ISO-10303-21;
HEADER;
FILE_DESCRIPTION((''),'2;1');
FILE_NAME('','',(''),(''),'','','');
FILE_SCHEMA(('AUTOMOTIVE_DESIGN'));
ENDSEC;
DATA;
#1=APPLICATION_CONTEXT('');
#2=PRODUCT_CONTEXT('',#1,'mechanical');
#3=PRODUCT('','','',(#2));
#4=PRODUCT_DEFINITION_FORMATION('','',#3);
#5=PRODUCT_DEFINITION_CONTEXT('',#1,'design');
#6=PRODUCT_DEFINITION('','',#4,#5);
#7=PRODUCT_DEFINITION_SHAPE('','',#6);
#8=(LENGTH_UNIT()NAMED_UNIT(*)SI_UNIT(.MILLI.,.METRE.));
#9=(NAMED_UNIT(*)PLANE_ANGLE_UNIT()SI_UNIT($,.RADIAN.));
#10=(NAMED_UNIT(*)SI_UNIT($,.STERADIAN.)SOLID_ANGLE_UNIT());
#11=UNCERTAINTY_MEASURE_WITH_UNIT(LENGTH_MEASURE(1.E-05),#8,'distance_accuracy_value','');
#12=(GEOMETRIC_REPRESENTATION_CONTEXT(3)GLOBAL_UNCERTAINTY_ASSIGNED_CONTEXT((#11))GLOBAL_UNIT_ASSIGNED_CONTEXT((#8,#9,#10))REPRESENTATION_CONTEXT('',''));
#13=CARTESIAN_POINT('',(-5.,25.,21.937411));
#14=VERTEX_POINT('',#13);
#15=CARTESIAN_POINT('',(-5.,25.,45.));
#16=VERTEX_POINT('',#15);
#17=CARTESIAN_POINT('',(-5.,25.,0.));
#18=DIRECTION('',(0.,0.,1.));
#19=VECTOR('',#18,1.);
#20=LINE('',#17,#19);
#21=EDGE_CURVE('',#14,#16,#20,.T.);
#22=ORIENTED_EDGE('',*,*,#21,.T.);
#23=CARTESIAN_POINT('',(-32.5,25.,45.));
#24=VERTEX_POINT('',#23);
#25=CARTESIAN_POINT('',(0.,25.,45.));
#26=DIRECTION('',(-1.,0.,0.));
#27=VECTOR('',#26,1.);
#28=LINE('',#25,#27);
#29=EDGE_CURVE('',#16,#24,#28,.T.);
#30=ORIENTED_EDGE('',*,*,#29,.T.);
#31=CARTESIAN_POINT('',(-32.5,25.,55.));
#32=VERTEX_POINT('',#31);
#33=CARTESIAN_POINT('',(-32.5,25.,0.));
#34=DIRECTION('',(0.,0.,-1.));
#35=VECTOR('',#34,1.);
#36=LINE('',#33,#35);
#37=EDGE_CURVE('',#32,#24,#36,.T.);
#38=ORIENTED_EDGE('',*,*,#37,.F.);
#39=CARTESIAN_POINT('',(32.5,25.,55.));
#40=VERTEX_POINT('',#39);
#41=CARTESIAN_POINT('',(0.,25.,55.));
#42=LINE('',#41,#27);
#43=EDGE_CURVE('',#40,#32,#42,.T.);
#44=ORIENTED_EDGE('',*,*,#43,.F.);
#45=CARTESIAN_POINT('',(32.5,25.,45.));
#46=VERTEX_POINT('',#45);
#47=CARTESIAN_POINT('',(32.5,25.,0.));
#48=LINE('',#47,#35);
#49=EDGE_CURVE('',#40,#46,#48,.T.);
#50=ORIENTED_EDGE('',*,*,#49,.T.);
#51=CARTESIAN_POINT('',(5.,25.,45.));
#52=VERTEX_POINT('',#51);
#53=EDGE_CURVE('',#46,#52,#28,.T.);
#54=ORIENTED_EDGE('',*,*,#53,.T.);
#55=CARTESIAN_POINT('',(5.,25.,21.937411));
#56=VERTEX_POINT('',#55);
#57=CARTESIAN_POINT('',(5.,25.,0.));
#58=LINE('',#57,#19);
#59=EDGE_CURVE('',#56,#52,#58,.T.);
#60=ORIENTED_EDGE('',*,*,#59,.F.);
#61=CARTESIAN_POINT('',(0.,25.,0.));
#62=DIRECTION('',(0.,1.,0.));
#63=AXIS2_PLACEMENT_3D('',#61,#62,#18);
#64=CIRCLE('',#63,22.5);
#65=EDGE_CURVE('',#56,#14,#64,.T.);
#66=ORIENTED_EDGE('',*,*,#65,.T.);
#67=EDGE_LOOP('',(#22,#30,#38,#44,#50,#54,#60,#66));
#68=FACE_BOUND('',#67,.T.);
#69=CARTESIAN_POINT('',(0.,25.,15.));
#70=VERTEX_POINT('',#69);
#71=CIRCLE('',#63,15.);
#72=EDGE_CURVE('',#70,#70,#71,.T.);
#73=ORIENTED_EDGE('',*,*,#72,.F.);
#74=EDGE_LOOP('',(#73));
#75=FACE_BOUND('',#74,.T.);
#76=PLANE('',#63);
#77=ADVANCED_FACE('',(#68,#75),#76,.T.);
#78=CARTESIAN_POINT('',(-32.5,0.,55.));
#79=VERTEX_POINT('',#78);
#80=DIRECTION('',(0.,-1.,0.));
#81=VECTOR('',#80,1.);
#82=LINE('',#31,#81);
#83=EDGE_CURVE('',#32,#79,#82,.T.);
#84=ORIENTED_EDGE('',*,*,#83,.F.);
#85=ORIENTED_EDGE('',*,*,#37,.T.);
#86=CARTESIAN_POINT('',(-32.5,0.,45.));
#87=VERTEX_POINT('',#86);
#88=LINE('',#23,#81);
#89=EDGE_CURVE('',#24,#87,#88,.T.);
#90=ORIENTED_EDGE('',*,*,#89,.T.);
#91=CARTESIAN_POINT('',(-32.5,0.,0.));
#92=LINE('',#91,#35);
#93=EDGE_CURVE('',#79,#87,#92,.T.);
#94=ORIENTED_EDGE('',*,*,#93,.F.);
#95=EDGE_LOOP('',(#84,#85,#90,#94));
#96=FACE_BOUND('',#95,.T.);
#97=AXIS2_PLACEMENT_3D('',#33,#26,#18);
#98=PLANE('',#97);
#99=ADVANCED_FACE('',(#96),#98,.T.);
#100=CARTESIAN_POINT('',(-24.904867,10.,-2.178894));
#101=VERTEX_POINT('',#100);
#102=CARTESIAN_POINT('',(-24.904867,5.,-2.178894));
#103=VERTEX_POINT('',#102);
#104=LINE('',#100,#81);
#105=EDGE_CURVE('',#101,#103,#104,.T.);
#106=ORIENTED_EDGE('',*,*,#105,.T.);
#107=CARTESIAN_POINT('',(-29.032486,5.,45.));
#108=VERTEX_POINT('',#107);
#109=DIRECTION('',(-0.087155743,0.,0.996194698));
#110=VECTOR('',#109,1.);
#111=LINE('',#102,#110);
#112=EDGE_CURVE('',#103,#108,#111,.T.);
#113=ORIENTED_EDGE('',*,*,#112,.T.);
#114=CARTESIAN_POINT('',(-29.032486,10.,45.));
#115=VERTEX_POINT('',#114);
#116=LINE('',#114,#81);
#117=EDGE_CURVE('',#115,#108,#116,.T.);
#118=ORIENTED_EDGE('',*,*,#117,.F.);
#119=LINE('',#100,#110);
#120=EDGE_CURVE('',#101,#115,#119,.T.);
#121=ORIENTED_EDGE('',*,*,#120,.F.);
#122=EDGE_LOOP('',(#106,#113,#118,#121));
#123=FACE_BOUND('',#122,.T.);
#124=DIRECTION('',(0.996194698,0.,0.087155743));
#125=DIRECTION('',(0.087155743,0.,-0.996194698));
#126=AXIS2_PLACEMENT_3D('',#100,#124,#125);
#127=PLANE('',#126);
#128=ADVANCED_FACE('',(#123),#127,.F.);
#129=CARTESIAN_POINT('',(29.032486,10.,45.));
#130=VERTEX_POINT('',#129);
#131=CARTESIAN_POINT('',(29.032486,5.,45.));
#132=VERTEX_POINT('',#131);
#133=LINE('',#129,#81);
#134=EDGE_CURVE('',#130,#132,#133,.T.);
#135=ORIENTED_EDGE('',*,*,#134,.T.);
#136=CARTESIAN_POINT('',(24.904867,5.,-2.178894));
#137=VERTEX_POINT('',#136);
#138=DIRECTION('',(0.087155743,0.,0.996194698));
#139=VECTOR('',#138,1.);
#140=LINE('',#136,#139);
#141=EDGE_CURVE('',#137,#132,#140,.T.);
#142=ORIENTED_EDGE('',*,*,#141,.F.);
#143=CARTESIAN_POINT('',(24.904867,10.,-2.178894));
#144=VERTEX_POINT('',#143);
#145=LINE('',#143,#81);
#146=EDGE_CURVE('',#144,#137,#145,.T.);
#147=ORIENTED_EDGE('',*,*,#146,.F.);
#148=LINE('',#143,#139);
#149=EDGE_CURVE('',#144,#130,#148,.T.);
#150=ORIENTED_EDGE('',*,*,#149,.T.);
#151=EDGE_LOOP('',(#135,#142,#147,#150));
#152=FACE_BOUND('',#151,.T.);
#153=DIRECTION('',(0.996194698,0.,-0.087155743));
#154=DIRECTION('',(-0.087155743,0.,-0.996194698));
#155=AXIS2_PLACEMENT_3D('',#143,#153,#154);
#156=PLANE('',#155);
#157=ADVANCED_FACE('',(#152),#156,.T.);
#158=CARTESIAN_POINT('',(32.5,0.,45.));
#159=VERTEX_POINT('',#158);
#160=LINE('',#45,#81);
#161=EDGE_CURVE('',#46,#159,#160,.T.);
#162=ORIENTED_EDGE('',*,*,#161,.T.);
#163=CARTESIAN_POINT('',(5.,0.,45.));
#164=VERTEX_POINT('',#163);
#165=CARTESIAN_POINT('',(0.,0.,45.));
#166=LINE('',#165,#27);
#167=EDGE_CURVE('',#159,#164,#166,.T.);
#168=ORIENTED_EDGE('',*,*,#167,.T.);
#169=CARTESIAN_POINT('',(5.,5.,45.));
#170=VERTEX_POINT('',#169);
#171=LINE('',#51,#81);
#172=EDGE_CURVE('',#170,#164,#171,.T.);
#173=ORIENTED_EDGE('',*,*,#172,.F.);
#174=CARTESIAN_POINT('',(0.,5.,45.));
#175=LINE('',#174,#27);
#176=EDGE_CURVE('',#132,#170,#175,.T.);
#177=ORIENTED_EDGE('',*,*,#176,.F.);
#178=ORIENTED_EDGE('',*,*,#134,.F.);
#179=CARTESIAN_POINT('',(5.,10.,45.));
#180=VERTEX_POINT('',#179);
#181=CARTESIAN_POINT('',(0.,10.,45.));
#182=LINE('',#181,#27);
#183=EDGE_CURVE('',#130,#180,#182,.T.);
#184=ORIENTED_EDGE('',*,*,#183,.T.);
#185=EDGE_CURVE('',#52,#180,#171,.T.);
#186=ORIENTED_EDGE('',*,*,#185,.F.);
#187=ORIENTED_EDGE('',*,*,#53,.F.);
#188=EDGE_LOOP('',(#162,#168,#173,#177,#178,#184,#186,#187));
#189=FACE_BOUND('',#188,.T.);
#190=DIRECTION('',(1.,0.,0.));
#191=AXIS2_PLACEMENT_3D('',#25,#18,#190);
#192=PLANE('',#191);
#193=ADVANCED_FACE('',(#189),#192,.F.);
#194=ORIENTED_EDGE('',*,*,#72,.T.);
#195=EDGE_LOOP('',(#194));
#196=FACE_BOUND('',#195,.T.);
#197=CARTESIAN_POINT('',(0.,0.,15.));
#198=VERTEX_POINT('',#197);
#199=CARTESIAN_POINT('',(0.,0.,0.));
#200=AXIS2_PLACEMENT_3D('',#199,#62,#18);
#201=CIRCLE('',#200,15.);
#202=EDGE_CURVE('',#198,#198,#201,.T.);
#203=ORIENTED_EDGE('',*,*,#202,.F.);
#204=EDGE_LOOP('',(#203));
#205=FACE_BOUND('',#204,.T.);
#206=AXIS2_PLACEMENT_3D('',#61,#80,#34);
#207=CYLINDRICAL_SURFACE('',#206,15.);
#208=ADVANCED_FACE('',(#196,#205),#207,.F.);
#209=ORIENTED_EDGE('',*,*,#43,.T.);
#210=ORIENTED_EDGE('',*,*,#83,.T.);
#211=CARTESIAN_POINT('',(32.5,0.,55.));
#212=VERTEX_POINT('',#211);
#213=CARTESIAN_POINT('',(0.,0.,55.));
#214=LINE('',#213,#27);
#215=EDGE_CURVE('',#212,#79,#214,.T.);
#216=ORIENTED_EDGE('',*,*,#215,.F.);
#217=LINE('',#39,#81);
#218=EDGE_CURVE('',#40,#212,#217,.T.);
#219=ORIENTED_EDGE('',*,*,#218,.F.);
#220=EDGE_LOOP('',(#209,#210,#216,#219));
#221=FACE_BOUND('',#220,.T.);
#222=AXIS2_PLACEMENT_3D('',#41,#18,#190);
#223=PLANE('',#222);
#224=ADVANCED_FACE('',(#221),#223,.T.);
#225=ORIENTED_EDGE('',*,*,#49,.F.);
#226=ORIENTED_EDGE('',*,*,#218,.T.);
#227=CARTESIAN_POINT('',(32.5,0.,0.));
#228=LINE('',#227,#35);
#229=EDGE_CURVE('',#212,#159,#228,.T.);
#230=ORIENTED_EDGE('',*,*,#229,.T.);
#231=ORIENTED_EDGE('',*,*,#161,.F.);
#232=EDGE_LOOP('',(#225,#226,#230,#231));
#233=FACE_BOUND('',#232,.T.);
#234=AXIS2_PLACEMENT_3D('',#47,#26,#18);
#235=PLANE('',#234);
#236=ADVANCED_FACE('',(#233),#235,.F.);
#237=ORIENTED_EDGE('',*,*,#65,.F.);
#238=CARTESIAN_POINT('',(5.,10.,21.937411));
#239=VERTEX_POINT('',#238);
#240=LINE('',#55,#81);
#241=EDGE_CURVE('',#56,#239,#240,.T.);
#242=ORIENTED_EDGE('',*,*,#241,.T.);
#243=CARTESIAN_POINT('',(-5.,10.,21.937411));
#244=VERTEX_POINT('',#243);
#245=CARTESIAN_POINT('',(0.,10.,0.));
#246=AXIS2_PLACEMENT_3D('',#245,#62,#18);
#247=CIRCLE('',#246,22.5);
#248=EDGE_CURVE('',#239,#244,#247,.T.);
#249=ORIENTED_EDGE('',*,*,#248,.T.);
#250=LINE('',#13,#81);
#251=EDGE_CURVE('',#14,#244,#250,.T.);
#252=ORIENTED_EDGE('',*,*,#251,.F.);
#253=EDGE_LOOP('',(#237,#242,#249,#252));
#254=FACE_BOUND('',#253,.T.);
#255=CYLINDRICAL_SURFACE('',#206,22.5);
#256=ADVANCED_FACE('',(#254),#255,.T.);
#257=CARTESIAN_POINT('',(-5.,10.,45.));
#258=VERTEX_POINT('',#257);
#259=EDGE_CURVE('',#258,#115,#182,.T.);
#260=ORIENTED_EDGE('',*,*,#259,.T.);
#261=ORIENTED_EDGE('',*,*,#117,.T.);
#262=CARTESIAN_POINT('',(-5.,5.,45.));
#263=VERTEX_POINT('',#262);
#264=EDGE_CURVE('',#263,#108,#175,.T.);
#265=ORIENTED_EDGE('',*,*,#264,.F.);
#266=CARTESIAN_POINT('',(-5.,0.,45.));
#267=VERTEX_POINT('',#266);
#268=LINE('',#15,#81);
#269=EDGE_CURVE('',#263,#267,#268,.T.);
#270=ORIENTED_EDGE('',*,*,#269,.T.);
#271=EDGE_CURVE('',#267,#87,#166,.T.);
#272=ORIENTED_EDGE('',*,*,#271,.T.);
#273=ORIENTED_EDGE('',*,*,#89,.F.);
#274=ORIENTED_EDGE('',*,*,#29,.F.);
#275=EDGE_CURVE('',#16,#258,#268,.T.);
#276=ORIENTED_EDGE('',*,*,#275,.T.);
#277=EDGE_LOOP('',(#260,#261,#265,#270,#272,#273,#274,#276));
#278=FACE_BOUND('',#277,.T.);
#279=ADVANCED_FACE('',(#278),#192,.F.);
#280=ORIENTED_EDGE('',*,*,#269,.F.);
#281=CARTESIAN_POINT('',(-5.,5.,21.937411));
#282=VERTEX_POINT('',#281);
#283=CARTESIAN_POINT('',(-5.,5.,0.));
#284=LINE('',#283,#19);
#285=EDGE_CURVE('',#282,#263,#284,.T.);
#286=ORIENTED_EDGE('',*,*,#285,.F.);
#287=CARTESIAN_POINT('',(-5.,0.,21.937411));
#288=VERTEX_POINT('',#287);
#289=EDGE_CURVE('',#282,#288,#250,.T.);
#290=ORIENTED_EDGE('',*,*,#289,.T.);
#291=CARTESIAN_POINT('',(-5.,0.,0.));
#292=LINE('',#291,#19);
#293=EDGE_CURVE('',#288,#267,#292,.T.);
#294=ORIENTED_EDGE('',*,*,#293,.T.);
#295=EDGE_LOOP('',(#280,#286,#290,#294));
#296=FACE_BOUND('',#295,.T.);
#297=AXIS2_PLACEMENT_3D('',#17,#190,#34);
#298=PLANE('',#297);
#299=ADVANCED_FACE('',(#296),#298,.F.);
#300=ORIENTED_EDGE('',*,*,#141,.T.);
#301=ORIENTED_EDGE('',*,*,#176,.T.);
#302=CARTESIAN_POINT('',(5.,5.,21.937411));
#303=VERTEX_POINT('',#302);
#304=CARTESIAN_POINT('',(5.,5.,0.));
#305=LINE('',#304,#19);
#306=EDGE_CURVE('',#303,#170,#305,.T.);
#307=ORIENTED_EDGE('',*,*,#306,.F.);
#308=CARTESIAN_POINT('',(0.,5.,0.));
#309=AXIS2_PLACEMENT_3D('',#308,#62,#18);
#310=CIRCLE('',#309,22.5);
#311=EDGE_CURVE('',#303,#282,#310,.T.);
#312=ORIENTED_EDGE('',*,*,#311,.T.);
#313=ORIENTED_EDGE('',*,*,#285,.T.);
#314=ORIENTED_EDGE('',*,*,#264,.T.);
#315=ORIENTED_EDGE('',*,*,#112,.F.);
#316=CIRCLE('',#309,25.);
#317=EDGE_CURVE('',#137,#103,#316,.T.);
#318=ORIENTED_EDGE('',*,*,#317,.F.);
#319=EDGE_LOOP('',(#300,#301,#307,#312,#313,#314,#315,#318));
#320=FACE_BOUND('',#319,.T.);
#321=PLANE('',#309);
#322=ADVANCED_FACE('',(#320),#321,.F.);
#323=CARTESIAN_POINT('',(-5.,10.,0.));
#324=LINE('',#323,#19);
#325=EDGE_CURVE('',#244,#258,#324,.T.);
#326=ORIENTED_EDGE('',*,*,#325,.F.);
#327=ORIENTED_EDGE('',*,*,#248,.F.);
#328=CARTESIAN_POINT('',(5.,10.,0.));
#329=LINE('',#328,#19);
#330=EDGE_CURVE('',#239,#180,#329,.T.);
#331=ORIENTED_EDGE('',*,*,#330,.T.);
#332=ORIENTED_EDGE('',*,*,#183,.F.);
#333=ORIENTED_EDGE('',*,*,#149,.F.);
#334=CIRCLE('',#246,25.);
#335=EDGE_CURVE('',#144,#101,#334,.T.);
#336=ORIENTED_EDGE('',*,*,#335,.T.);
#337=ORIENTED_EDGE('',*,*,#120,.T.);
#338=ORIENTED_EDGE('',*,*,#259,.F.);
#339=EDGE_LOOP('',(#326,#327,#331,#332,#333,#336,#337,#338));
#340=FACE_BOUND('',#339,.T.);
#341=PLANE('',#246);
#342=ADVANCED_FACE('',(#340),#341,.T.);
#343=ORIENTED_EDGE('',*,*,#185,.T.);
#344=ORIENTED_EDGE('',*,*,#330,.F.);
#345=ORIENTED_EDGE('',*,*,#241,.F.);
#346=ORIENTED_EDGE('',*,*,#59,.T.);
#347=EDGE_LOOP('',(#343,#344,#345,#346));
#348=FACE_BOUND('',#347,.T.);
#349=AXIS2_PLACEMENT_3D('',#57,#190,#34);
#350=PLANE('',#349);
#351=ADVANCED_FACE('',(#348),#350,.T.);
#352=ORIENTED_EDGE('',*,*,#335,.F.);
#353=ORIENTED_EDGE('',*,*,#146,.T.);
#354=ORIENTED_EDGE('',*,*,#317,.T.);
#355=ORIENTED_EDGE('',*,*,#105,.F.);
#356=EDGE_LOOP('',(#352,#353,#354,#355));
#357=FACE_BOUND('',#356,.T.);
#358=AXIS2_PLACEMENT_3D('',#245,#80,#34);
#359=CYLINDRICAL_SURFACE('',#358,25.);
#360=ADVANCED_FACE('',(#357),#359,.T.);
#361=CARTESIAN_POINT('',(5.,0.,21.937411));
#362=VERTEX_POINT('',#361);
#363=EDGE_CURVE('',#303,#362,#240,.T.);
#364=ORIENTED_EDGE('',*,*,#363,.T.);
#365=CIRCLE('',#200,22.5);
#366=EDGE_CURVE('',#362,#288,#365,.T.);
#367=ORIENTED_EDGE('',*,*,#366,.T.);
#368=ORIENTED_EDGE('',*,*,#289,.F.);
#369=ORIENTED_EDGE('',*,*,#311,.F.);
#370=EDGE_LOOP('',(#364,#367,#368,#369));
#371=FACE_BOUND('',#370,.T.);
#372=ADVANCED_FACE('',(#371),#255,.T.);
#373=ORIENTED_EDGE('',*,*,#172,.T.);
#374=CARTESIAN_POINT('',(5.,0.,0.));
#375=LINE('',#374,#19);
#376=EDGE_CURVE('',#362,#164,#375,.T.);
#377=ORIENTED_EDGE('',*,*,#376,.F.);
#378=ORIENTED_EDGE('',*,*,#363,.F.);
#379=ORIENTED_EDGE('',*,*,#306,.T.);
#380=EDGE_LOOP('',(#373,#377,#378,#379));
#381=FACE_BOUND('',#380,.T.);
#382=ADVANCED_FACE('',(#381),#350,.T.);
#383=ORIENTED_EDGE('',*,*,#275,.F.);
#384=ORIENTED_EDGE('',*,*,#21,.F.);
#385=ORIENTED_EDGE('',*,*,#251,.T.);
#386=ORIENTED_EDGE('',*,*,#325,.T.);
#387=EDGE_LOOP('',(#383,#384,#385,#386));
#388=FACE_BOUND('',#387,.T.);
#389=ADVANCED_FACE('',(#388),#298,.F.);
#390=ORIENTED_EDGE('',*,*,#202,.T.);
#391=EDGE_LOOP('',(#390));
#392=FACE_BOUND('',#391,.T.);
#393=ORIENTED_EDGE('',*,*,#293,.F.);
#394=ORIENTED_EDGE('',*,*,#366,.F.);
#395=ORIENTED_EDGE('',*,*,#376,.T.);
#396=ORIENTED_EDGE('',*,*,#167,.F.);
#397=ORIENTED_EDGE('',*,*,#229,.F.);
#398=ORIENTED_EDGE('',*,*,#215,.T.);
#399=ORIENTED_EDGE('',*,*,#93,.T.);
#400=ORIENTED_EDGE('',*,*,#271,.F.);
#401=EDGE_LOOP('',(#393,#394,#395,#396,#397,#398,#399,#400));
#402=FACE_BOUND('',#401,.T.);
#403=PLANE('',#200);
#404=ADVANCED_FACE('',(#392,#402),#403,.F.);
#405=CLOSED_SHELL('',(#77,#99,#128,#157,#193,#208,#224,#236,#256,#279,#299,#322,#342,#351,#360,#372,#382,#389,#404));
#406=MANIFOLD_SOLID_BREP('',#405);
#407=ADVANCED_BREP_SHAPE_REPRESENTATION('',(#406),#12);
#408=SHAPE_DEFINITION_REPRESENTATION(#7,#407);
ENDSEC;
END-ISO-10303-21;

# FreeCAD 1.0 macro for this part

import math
import FreeCAD as App
import Part
import Sketcher

V = App.Vector
Q = App.Units.Quantity

doc = App.newDocument("Part")
body = doc.addObject("PartDesign::Body", "Body")

sketch1 = body.newObject("Sketcher::SketchObject", "Sketch")
sketch1.AttachmentSupport = (doc.getObject("XZ_Plane"), [""])
sketch1.MapMode = "FlatFace"
sketch1.addGeometry(Part.LineSegment(V(-32, 45, 0), V(-32, 55, 0)), False)
sketch1.addGeometry(Part.LineSegment(V(-32, 55, 0), V(32, 55, 0)), False)
sketch1.addGeometry(Part.LineSegment(V(32, 55, 0), V(32, 45, 0)), False)
sketch1.addGeometry(Part.LineSegment(V(32, 45, 0), V(5, 45, 0)), False)
sketch1.addGeometry(Part.LineSegment(V(5, 45, 0), V(5, 22, 0)), False)
sketch1.addGeometry(Part.ArcOfCircle(Part.Circle(V(0, 0, 0), V(0, 0, 1), 22), math.radians(103), math.radians(437)), False)
sketch1.addGeometry(Part.LineSegment(V(-5, 22, 0), V(-5, 45, 0)), False)
sketch1.addGeometry(Part.LineSegment(V(-5, 45, 0), V(-32, 45, 0)), False)
sketch1.addGeometry(Part.Circle(V(0, 0, 0), V(0, 0, 1), 15), False)
sketch1.addConstraint(Sketcher.Constraint("Coincident", 0, 2, 1, 1))
sketch1.addConstraint(Sketcher.Constraint("Coincident", 1, 2, 2, 1))
sketch1.addConstraint(Sketcher.Constraint("Coincident", 2, 2, 3, 1))
sketch1.addConstraint(Sketcher.Constraint("Coincident", 3, 2, 4, 1))
sketch1.addConstraint(Sketcher.Constraint("Coincident", 4, 2, 5, 2))
sketch1.addConstraint(Sketcher.Constraint("Coincident", 5, 1, 6, 1))
sketch1.addConstraint(Sketcher.Constraint("Coincident", 6, 2, 7, 1))
sketch1.addConstraint(Sketcher.Constraint("Coincident", 7, 2, 0, 1))
sketch1.addConstraint(Sketcher.Constraint("Vertical", 0))
sketch1.addConstraint(Sketcher.Constraint("Horizontal", 1))
sketch1.addConstraint(Sketcher.Constraint("Vertical", 2))
sketch1.addConstraint(Sketcher.Constraint("Horizontal", 3))
sketch1.addConstraint(Sketcher.Constraint("Vertical", 4))
sketch1.addConstraint(Sketcher.Constraint("Vertical", 6))
sketch1.addConstraint(Sketcher.Constraint("Horizontal", 7))
sketch1.addConstraint(Sketcher.Constraint("Coincident", 5, 3, -1, 1))
sketch1.addConstraint(Sketcher.Constraint("Coincident", 8, 3, -1, 1))
sketch1.addConstraint(Sketcher.Constraint("Symmetric", 3, 2, 6, 2, -2))
sketch1.addConstraint(Sketcher.Constraint("Equal", 3, 7))
sketch1.addConstraint(Sketcher.Constraint("Diameter", 8, 30.0))
sketch1.addConstraint(Sketcher.Constraint("Radius", 5, 22.5))
sketch1.addConstraint(Sketcher.Constraint("DistanceX", 1, 1, 1, 2, 65.0))
sketch1.addConstraint(Sketcher.Constraint("DistanceY", 0, 1, 0, 2, 10.0))
sketch1.addConstraint(Sketcher.Constraint("DistanceX", 3, 2, 3, 1, 27.5))
sketch1.addConstraint(Sketcher.Constraint("DistanceY", -1, 1, 0, 2, 55.0))
pad1 = body.newObject("PartDesign::Pad", "Pad")
pad1.Profile = sketch1
pad1.Length = 25
pad1.Reversed = True

sketch2 = body.newObject("Sketcher::SketchObject", "Sketch001")
sketch2.AttachmentSupport = (doc.getObject("XZ_Plane"), [""])
sketch2.MapMode = "FlatFace"
sketch2.AttachmentOffset = App.Placement(V(0, 0, -5), App.Rotation())
sketch2.addGeometry(Part.ArcOfCircle(Part.Circle(V(0, 0, 0), V(0, 0, 1), 25), math.radians(-175), math.radians(-5)), False)
sketch2.addGeometry(Part.LineSegment(V(-25, -2, 0), V(-29, 45, 0)), False)
sketch2.addGeometry(Part.LineSegment(V(-29, 45, 0), V(-5, 45, 0)), False)
sketch2.addGeometry(Part.LineSegment(V(-5, 45, 0), V(-5, 22, 0)), False)
sketch2.addGeometry(Part.ArcOfCircle(Part.Circle(V(0, 0, 0), V(0, 0, 1), 22), math.radians(103), math.radians(360)), False)
sketch2.addGeometry(Part.ArcOfCircle(Part.Circle(V(0, 0, 0), V(0, 0, 1), 23), math.radians(0), math.radians(77)), False)
sketch2.addGeometry(Part.LineSegment(V(5, 22, 0), V(5, 45, 0)), False)
sketch2.addGeometry(Part.LineSegment(V(5, 45, 0), V(29, 45, 0)), False)
sketch2.addGeometry(Part.LineSegment(V(29, 45, 0), V(25, -2, 0)), False)
sketch2.addConstraint(Sketcher.Constraint("Tangent", 0, 1, 1, 1))
sketch2.addConstraint(Sketcher.Constraint("Coincident", 1, 2, 2, 1))
sketch2.addConstraint(Sketcher.Constraint("Coincident", 2, 2, 3, 1))
sketch2.addConstraint(Sketcher.Constraint("Coincident", 3, 2, 4, 1))
sketch2.addConstraint(Sketcher.Constraint("Tangent", 4, 2, 5, 1))
sketch2.addConstraint(Sketcher.Constraint("Coincident", 5, 2, 6, 1))
sketch2.addConstraint(Sketcher.Constraint("Coincident", 6, 2, 7, 1))
sketch2.addConstraint(Sketcher.Constraint("Coincident", 7, 2, 8, 1))
sketch2.addConstraint(Sketcher.Constraint("Tangent", 8, 2, 0, 2))
sketch2.addConstraint(Sketcher.Constraint("Horizontal", 2))
sketch2.addConstraint(Sketcher.Constraint("Vertical", 3))
sketch2.addConstraint(Sketcher.Constraint("Vertical", 6))
sketch2.addConstraint(Sketcher.Constraint("Horizontal", 7))
sketch2.addConstraint(Sketcher.Constraint("Coincident", 0, 3, -1, 1))
sketch2.addConstraint(Sketcher.Constraint("Coincident", 4, 3, -1, 1))
sketch2.addConstraint(Sketcher.Constraint("Equal", 4, 5))
sketch2.addConstraint(Sketcher.Constraint("Symmetric", 2, 2, 6, 2, -2))
sketch2.addConstraint(Sketcher.Constraint("PointOnObject", 4, 2, -1))
sketch2.addConstraint(Sketcher.Constraint("Horizontal", 0, 1, 8, 2))
sketch2.addConstraint(Sketcher.Constraint("Radius", 0, 25.0))
sketch2.addConstraint(Sketcher.Constraint("Radius", 4, 22.5))
sketch2.addConstraint(Sketcher.Constraint("Angle", 1, Q("95 deg")))
sketch2.addConstraint(Sketcher.Constraint("DistanceY", -1, 1, 1, 2, 45.0))
sketch2.addConstraint(Sketcher.Constraint("DistanceX", 2, 2, -1, 1, 5.0))
pad2 = body.newObject("PartDesign::Pad", "Pad001")
pad2.Profile = sketch2
pad2.Length = 5
pad2.Reversed = True

doc.recompute()
